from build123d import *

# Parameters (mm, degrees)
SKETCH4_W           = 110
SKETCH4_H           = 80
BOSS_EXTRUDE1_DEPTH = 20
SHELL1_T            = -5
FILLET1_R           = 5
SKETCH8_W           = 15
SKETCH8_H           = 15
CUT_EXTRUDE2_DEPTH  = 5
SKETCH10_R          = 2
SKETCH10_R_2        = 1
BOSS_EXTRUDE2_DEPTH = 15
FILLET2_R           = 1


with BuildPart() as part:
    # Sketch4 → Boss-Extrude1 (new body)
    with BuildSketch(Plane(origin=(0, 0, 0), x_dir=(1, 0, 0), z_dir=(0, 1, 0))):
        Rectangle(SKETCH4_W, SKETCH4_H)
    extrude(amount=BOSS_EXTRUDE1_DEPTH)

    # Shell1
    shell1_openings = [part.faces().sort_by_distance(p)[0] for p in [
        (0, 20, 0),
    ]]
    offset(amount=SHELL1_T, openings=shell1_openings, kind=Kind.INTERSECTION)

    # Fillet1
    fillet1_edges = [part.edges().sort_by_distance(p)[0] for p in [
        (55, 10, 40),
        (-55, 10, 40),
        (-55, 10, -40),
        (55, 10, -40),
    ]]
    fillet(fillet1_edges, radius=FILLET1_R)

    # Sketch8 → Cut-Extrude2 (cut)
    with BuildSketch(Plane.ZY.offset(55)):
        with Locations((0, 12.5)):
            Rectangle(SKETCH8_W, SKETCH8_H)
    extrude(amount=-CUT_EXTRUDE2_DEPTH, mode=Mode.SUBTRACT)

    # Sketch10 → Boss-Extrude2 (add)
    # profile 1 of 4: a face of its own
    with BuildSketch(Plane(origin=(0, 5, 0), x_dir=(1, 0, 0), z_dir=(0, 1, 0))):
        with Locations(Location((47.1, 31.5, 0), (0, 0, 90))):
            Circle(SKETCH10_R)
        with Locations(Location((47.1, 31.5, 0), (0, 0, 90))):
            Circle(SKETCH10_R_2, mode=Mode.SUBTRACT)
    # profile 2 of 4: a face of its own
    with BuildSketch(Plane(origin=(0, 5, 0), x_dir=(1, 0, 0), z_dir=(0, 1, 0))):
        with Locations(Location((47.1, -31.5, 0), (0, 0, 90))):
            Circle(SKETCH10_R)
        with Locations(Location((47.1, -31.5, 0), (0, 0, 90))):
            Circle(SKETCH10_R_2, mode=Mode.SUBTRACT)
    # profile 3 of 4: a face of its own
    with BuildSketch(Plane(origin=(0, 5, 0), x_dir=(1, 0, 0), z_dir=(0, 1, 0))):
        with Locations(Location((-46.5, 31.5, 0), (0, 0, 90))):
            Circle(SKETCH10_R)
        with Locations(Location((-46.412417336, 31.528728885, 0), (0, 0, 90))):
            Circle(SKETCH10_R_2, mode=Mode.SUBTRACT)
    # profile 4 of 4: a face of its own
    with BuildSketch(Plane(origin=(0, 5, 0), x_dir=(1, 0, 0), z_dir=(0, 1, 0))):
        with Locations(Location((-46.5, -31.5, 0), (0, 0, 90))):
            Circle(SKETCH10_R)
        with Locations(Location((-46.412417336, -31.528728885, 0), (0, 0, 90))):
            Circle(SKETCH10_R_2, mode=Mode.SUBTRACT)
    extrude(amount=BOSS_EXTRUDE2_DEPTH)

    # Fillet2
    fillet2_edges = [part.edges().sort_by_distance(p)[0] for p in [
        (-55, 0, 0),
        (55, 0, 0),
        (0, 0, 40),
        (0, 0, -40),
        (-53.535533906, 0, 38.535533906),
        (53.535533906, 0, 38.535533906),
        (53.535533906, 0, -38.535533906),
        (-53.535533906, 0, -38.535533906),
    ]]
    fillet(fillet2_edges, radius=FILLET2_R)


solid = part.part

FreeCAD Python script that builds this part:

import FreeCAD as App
import Part
import Sketcher

V = App.Vector


def edges_at(feature, points):
    """Names of the edges that pass closest to the given points."""
    edges = feature.Shape.Edges
    near = lambda p: min(range(len(edges)), key=lambda i: edges[i].distToShape(Part.Vertex(*p))[0])
    return sorted({f"Edge{near(p) + 1}" for p in points})


def faces_at(feature, points):
    """Names of the faces that lie closest to the given points."""
    faces = feature.Shape.Faces
    near = lambda p: min(range(len(faces)), key=lambda i: faces[i].distToShape(Part.Vertex(*p))[0])
    return sorted({f"Face{near(p) + 1}" for p in points})

doc = App.newDocument("Part")
body = doc.addObject("PartDesign::Body", "Body")

sketch1 = doc.addObject("Sketcher::SketchObject", "Sketch")
body.addObject(sketch1)
sketch1.AttachmentSupport = (doc.XZ_Plane, [""])
sketch1.MapMode = "FlatFace"
sketch1.addGeometry([
    Part.LineSegment(V(-55, -40, 0), V(-55, 40, 0)),
    Part.LineSegment(V(-55, 40, 0), V(55, 40, 0)),
    Part.LineSegment(V(55, 40, 0), V(55, -40, 0)),
    Part.LineSegment(V(55, -40, 0), V(-55, -40, 0)),
], False)
sketch1.addConstraint([
    Sketcher.Constraint("Coincident", 0, 2, 1, 1),
    Sketcher.Constraint("Coincident", 1, 2, 2, 1),
    Sketcher.Constraint("Coincident", 2, 2, 3, 1),
    Sketcher.Constraint("Coincident", 3, 2, 0, 1),
    Sketcher.Constraint("Vertical", 0),
    Sketcher.Constraint("Horizontal", 1),
    Sketcher.Constraint("Vertical", 2),
    Sketcher.Constraint("Horizontal", 3),
    Sketcher.Constraint("Symmetric", 0, 2, 2, 2, -1, 1),
    Sketcher.Constraint("DistanceX", 1, 1, 1, 2, 110.0),
    Sketcher.Constraint("DistanceY", 0, 1, 0, 2, 80.0),
])
pad1 = doc.addObject("PartDesign::Pad", "Pad")
body.addObject(pad1)
pad1.Profile = sketch1
pad1.Length = 20
pad1.Reversed = True
doc.recompute()

thickness = doc.addObject("PartDesign::Thickness", "Thickness")
body.addObject(thickness)
thickness.Base = (pad1, faces_at(pad1, [(0, 20, 0)]))
thickness.Value = 5
thickness.Reversed = True
thickness.Join = "Intersection"
doc.recompute()

fillet = doc.addObject("PartDesign::Fillet", "Fillet")
body.addObject(fillet)
fillet.Base = (thickness, edges_at(thickness, [
    (55, 10, 40),
    (-55, 10, 40),
    (-55, 10, -40),
    (55, 10, -40),
]))
fillet.Radius = 5

sketch2 = doc.addObject("Sketcher::SketchObject", "Sketch001")
body.addObject(sketch2)
sketch2.AttachmentSupport = (doc.YZ_Plane, [""])
sketch2.MapMode = "FlatFace"
sketch2.AttachmentOffset = App.Placement(V(0, 0, -55), App.Rotation())
sketch2.addGeometry([
    Part.LineSegment(V(20, -8, 0), V(5, -8, 0)),
    Part.LineSegment(V(5, -8, 0), V(5, 8, 0)),
    Part.LineSegment(V(5, 8, 0), V(20, 8, 0)),
    Part.LineSegment(V(20, 8, 0), V(20, -8, 0)),
], False)
sketch2.addConstraint([
    Sketcher.Constraint("Coincident", 0, 2, 1, 1),
    Sketcher.Constraint("Coincident", 1, 2, 2, 1),
    Sketcher.Constraint("Coincident", 2, 2, 3, 1),
    Sketcher.Constraint("Coincident", 3, 2, 0, 1),
    Sketcher.Constraint("Horizontal", 0),
    Sketcher.Constraint("Vertical", 1),
    Sketcher.Constraint("Horizontal", 2),
    Sketcher.Constraint("Vertical", 3),
    Sketcher.Constraint("Equal", 2, 1),
    Sketcher.Constraint("DistanceX", 0, 2, 0, 1, 15.0),
    Sketcher.Constraint("DistanceX", -1, 1, 0, 2, 5.0),
    Sketcher.Constraint("DistanceY", 0, 2, -1, 1, 7.5),
])
pocket1 = doc.addObject("PartDesign::Pocket", "Pocket")
body.addObject(pocket1)
pocket1.Profile = sketch2
pocket1.Length = 5
pocket1.Reversed = True

sketch3 = doc.addObject("Sketcher::SketchObject", "Sketch002")
body.addObject(sketch3)
sketch3.AttachmentSupport = (doc.XZ_Plane, [""])
sketch3.MapMode = "FlatFace"
sketch3.AttachmentOffset = App.Placement(V(0, 0, -5), App.Rotation())
sketch3.addGeometry([
    Part.Circle(V(47.1, -31.5, 0), V(0, 0, 1), 2),
    Part.Circle(V(47.1, -31.5, 0), V(0, 0, 1), 1),
    Part.Circle(V(47.1, 31.5, 0), V(0, 0, 1), 2),
    Part.Circle(V(47.1, 31.5, 0), V(0, 0, 1), 1),
    Part.Circle(V(-46.5, -31.5, 0), V(0, 0, 1), 2),
    Part.Circle(V(-46.4, -31.5, 0), V(0, 0, 1), 1),
    Part.Circle(V(-46.5, 31.5, 0), V(0, 0, 1), 2),
    Part.Circle(V(-46.4, 31.5, 0), V(0, 0, 1), 1),
], False)
sketch3.addConstraint([
    Sketcher.Constraint("Coincident", 1, 3, 0, 3),
    Sketcher.Constraint("Coincident", 3, 3, 2, 3),
    Sketcher.Constraint("Equal", 0, 2),
    Sketcher.Constraint("Equal", 1, 3),
    Sketcher.Constraint("Equal", 2, 4),
    Sketcher.Constraint("Equal", 3, 5),
    Sketcher.Constraint("Equal", 4, 6),
    Sketcher.Constraint("Equal", 5, 7),
    Sketcher.Constraint("Symmetric", 0, 3, 2, 3, -1),
    Sketcher.Constraint("Symmetric", 4, 3, 6, 3, -1),
    Sketcher.Constraint("Symmetric", 5, 3, 7, 3, -1),
    Sketcher.Constraint("Horizontal", 1, 3, 4, 3),
    Sketcher.Constraint("Diameter", 0, 4.0),
    Sketcher.Constraint("Diameter", 1, 2.0),
    Sketcher.Constraint("DistanceY", 0, 3, 2, 3, 63.0),
    Sketcher.Constraint("DistanceX", -1, 1, 0, 3, 47.1),
    Sketcher.Constraint("DistanceX", 4, 3, -1, 1, 46.5),
    Sketcher.Constraint("DistanceY", 5, 3, -1, 1, 31.528729),
    Sketcher.Constraint("DistanceX", 5, 3, -1, 1, 46.412417),
])
pad2 = doc.addObject("PartDesign::Pad", "Pad001")
body.addObject(pad2)
pad2.Profile = sketch3
pad2.Length = 15
pad2.Reversed = True
doc.recompute()

fillet2 = doc.addObject("PartDesign::Fillet", "Fillet001")
body.addObject(fillet2)
fillet2.Base = (pad2, edges_at(pad2, [
    (-55, 0, 0),
    (55, 0, 0),
    (0, 0, 40),
    (0, 0, -40),
    (-53.536, 0, 38.536),
    (53.536, 0, 38.536),
    (53.536, 0, -38.536),
    (-53.536, 0, -38.536),
]))
fillet2.Radius = 1

doc.recompute()
